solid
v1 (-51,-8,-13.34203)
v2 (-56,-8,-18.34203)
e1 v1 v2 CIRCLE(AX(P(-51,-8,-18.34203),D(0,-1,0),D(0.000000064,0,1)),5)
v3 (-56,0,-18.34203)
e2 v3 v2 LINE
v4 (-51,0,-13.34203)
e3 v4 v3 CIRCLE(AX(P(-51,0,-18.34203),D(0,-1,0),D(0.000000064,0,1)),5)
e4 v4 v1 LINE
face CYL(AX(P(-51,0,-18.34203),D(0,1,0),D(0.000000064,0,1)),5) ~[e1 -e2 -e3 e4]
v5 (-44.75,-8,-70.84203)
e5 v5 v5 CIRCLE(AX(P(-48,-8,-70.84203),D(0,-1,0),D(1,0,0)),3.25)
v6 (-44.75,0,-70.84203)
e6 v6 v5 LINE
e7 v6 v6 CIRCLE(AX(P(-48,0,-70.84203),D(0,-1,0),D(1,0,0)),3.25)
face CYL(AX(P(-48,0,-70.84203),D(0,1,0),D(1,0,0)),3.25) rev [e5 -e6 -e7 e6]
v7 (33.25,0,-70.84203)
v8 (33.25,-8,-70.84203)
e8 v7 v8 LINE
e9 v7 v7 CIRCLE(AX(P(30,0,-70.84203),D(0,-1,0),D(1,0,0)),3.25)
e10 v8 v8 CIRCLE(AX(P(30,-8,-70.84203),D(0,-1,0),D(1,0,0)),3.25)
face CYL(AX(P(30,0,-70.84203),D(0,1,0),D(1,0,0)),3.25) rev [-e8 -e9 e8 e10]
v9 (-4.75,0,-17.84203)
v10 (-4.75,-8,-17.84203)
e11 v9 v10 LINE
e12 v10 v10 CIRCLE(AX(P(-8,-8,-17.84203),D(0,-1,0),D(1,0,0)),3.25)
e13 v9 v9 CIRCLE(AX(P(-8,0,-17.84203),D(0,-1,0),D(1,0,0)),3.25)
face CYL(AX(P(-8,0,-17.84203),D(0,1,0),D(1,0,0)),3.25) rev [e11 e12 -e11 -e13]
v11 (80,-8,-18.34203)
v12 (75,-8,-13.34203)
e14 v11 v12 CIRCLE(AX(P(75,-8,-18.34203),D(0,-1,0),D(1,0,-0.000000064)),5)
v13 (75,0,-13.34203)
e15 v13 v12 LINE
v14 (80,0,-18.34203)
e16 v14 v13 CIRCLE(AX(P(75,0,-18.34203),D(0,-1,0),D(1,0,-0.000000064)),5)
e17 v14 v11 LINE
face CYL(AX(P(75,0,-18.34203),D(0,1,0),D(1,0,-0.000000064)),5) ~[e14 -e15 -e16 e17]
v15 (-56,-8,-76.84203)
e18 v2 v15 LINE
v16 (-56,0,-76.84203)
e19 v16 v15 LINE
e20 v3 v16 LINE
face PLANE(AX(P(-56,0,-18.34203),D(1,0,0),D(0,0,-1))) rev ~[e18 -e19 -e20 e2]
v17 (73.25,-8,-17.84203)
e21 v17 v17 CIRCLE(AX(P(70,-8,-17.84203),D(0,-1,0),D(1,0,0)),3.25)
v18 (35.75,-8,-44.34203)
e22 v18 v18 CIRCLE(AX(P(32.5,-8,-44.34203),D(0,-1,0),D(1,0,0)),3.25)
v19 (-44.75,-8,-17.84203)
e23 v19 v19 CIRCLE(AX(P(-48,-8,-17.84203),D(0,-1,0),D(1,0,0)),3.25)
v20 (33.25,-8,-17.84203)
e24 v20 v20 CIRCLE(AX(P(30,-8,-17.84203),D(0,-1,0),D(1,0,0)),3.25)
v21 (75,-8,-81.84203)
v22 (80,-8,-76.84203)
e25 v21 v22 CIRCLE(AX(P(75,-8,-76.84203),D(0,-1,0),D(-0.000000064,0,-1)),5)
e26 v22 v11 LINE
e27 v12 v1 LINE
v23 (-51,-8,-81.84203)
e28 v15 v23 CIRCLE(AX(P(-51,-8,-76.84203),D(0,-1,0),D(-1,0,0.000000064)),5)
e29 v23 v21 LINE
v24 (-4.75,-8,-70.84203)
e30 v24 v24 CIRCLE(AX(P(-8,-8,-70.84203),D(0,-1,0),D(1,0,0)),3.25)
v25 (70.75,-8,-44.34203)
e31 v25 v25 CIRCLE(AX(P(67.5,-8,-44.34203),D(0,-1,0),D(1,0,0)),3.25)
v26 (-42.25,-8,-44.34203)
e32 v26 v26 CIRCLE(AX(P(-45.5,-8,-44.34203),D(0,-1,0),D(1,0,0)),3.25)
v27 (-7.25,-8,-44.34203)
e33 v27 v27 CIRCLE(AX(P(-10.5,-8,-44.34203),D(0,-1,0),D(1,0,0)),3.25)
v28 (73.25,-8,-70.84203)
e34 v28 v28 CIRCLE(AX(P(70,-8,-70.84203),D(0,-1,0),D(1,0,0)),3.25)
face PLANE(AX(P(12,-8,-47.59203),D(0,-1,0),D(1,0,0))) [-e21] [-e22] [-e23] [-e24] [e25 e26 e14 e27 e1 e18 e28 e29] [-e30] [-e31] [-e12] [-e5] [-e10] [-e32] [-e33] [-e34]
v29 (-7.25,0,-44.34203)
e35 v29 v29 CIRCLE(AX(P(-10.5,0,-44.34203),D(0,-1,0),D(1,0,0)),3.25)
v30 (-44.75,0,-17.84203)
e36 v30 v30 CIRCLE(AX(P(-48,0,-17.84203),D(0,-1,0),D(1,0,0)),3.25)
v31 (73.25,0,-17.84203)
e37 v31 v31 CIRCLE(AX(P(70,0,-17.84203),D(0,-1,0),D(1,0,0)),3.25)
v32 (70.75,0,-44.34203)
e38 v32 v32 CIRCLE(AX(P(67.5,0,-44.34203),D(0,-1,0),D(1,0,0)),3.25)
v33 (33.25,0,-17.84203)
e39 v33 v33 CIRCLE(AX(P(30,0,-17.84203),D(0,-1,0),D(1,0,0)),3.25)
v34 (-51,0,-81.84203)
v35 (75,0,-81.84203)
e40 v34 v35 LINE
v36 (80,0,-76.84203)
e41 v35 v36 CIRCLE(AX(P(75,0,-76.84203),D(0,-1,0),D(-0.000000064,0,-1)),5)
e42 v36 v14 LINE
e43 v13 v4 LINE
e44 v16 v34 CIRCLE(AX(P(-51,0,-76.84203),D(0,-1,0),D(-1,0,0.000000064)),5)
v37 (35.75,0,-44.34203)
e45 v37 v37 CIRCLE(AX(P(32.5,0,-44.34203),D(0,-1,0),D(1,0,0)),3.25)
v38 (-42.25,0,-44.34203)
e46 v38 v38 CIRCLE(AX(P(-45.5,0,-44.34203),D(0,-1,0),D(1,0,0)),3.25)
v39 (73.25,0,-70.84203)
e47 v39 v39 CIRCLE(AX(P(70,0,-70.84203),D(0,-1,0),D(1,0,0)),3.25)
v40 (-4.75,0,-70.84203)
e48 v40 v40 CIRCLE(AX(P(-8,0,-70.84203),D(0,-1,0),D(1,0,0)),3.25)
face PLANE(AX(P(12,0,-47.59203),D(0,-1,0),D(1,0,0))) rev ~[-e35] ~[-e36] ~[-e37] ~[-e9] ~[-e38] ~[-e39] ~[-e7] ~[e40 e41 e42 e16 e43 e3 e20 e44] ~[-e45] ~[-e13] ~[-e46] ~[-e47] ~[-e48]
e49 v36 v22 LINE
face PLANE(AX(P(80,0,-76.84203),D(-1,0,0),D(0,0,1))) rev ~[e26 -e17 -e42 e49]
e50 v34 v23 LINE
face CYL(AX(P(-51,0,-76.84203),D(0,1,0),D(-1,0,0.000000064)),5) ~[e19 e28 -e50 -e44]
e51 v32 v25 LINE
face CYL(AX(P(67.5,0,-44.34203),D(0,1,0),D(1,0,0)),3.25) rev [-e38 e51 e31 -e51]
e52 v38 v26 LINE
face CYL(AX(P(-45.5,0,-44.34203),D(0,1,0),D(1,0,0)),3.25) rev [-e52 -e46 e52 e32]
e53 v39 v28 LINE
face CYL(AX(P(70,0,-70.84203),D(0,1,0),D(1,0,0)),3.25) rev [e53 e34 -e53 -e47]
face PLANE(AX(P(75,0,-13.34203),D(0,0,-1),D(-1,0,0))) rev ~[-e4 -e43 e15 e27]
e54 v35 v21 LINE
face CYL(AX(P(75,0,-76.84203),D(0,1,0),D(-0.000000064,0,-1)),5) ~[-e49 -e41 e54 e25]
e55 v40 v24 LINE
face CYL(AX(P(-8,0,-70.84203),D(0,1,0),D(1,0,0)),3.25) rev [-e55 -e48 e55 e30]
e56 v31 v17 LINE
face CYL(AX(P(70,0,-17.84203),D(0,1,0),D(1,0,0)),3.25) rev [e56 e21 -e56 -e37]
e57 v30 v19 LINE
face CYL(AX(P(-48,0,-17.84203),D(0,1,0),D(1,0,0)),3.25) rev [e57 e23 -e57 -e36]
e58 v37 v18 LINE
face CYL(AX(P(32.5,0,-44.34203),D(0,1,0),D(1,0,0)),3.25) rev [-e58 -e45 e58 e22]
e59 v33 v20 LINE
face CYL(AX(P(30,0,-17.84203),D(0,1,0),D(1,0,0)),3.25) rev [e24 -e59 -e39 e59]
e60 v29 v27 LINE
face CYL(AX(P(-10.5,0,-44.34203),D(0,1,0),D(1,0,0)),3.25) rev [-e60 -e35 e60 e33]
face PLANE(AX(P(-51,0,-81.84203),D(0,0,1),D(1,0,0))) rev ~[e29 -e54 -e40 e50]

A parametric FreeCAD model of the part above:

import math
import FreeCAD as App
import Part
import Sketcher

V = App.Vector
Q = App.Units.Quantity

doc = App.newDocument("Part")
body = doc.addObject("PartDesign::Body", "Body")

# Sketch on XZ plane
sketch1 = body.newObject("Sketcher::SketchObject", "Sketch")
sketch1.AttachmentSupport = (doc.getObject("XZ_Plane"), [""])
sketch1.MapMode = "FlatFace"
sketch1.addGeometry(Part.LineSegment(V(-51, -81.84203, 0), V(75, -81.84203, 0)), False)
sketch1.addGeometry(Part.ArcOfCircle(Part.Circle(V(75, -76.84203, 0), V(0, 0, 1), 5), math.radians(-90.000004), math.radians(0.000004)), False)
sketch1.addGeometry(Part.LineSegment(V(80, -76.84203, 0), V(80, -18.34203, 0)), False)
sketch1.addGeometry(Part.ArcOfCircle(Part.Circle(V(75, -18.34203, 0), V(0, 0, 1), 5), math.radians(-0.000004), math.radians(90.000004)), False)
sketch1.addGeometry(Part.LineSegment(V(75, -13.34203, 0), V(-51, -13.34203, 0)), False)
sketch1.addGeometry(Part.ArcOfCircle(Part.Circle(V(-51, -18.34203, 0), V(0, 0, 1), 5), math.radians(89.999996), math.radians(180.000004)), False)
sketch1.addGeometry(Part.LineSegment(V(-56, -18.34203, 0), V(-56, -76.84203, 0)), False)
sketch1.addGeometry(Part.ArcOfCircle(Part.Circle(V(-51, -76.84203, 0), V(0, 0, 1), 5), math.radians(179.999996), math.radians(270.000004)), False)
sketch1.addGeometry(Part.Circle(V(-48, -70.84203, 0), V(0, 0, 1), 3.25), False)
sketch1.addGeometry(Part.Circle(V(-8, -70.84203, 0), V(0, 0, 1), 3.25), False)
sketch1.addGeometry(Part.Circle(V(-45.5, -44.34203, 0), V(0, 0, 1), 3.25), False)
sketch1.addGeometry(Part.Circle(V(-10.5, -44.34203, 0), V(0, 0, 1), 3.25), False)
sketch1.addGeometry(Part.Circle(V(30, -70.84203, 0), V(0, 0, 1), 3.25), False)
sketch1.addGeometry(Part.Circle(V(70, -70.84203, 0), V(0, 0, 1), 3.25), False)
sketch1.addGeometry(Part.Circle(V(32.5, -44.34203, 0), V(0, 0, 1), 3.25), False)
sketch1.addGeometry(Part.Circle(V(67.5, -44.34203, 0), V(0, 0, 1), 3.25), False)
sketch1.addGeometry(Part.Circle(V(-48, -17.84203, 0), V(0, 0, 1), 3.25), False)
sketch1.addGeometry(Part.Circle(V(-8, -17.84203, 0), V(0, 0, 1), 3.25), False)
sketch1.addGeometry(Part.Circle(V(30, -17.84203, 0), V(0, 0, 1), 3.25), False)
sketch1.addGeometry(Part.Circle(V(70, -17.84203, 0), V(0, 0, 1), 3.25), False)
sketch1.addConstraint(Sketcher.Constraint("Tangent", 0, 2, 1, 1))
sketch1.addConstraint(Sketcher.Constraint("Tangent", 1, 2, 2, 1))
sketch1.addConstraint(Sketcher.Constraint("Tangent", 2, 2, 3, 1))
sketch1.addConstraint(Sketcher.Constraint("Tangent", 3, 2, 4, 1))
sketch1.addConstraint(Sketcher.Constraint("Tangent", 4, 2, 5, 1))
sketch1.addConstraint(Sketcher.Constraint("Tangent", 5, 2, 6, 1))
sketch1.addConstraint(Sketcher.Constraint("Tangent", 6, 2, 7, 1))
sketch1.addConstraint(Sketcher.Constraint("Tangent", 7, 2, 0, 1))
sketch1.addConstraint(Sketcher.Constraint("Horizontal", 0))
sketch1.addConstraint(Sketcher.Constraint("Vertical", 2))
sketch1.addConstraint(Sketcher.Constraint("Horizontal", 4))
sketch1.addConstraint(Sketcher.Constraint("Vertical", 6))
sketch1.addConstraint(Sketcher.Constraint("Equal", 1, 3))
sketch1.addConstraint(Sketcher.Constraint("Equal", 3, 5))
sketch1.addConstraint(Sketcher.Constraint("Equal", 5, 7))
sketch1.addConstraint(Sketcher.Constraint("Equal", 8, 9))
sketch1.addConstraint(Sketcher.Constraint("Equal", 9, 10))
sketch1.addConstraint(Sketcher.Constraint("Equal", 10, 11))
sketch1.addConstraint(Sketcher.Constraint("Equal", 11, 12))
sketch1.addConstraint(Sketcher.Constraint("Equal", 12, 13))
sketch1.addConstraint(Sketcher.Constraint("Equal", 13, 14))
sketch1.addConstraint(Sketcher.Constraint("Equal", 14, 15))
sketch1.addConstraint(Sketcher.Constraint("Equal", 15, 16))
sketch1.addConstraint(Sketcher.Constraint("Equal", 16, 17))
sketch1.addConstraint(Sketcher.Constraint("Equal", 17, 18))
sketch1.addConstraint(Sketcher.Constraint("Equal", 18, 19))
sketch1.addConstraint(Sketcher.Constraint("Horizontal", 8, 3, 9, 3))
sketch1.addConstraint(Sketcher.Constraint("Horizontal", 10, 3, 11, 3))
sketch1.addConstraint(Sketcher.Constraint("Horizontal", 9, 3, 12, 3))
sketch1.addConstraint(Sketcher.Constraint("Horizontal", 12, 3, 13, 3))
sketch1.addConstraint(Sketcher.Constraint("Horizontal", 11, 3, 14, 3))
sketch1.addConstraint(Sketcher.Constraint("Horizontal", 14, 3, 15, 3))
sketch1.addConstraint(Sketcher.Constraint("Horizontal", 16, 3, 17, 3))
sketch1.addConstraint(Sketcher.Constraint("Horizontal", 17, 3, 18, 3))
sketch1.addConstraint(Sketcher.Constraint("Horizontal", 18, 3, 19, 3))
sketch1.addConstraint(Sketcher.Constraint("Vertical", 8, 3, 16, 3))
sketch1.addConstraint(Sketcher.Constraint("Vertical", 9, 3, 17, 3))
sketch1.addConstraint(Sketcher.Constraint("Vertical", 12, 3, 18, 3))
sketch1.addConstraint(Sketcher.Constraint("Vertical", 13, 3, 19, 3))
sketch1.addConstraint(Sketcher.Constraint("Radius", 1, Q("5 mm")))
sketch1.addConstraint(Sketcher.Constraint("Diameter", 8, Q("6.5 mm")))
sketch1.addConstraint(Sketcher.Constraint("DistanceX", 0, 1, 0, 2, Q("126 mm")))
sketch1.addConstraint(Sketcher.Constraint("DistanceY", 2, 1, 2, 2, Q("58.5 mm")))
sketch1.addConstraint(Sketcher.Constraint("DistanceX", -1, 1, 1, 3, Q("75 mm")))
sketch1.addConstraint(Sketcher.Constraint("DistanceX", 8, 3, -1, 1, Q("48 mm")))
sketch1.addConstraint(Sketcher.Constraint("DistanceX", 9, 3, -1, 1, Q("8 mm")))
sketch1.addConstraint(Sketcher.Constraint("DistanceX", -1, 1, 12, 3, Q("30 mm")))
sketch1.addConstraint(Sketcher.Constraint("DistanceX", -1, 1, 13, 3, Q("70 mm")))
sketch1.addConstraint(Sketcher.Constraint("DistanceY", 7, 3, 8, 3, Q("6 mm")))
sketch1.addConstraint(Sketcher.Constraint("DistanceY", 10, 3, 5, 3, Q("26 mm")))
sketch1.addConstraint(Sketcher.Constraint("DistanceX", 10, 3, 11, 3, Q("35 mm")))
sketch1.addConstraint(Sketcher.Constraint("DistanceX", 11, 3, 14, 3, Q("43 mm")))
sketch1.addConstraint(Sketcher.Constraint("DistanceX", 14, 3, 15, 3, Q("35 mm")))
sketch1.addConstraint(Sketcher.Constraint("DistanceY", 8, 3, 16, 3, Q("53 mm")))
sketch1.addConstraint(Sketcher.Constraint("DistanceX", 10, 3, -1, 1, Q("45.5 mm")))
sketch1.addConstraint(Sketcher.Constraint("DistanceY", 1, 3, -1, 1, Q("76.84203 mm")))
pad1 = body.newObject("PartDesign::Pad", "Pad")
pad1.Profile = sketch1
pad1.Length = 8

doc.recompute()
